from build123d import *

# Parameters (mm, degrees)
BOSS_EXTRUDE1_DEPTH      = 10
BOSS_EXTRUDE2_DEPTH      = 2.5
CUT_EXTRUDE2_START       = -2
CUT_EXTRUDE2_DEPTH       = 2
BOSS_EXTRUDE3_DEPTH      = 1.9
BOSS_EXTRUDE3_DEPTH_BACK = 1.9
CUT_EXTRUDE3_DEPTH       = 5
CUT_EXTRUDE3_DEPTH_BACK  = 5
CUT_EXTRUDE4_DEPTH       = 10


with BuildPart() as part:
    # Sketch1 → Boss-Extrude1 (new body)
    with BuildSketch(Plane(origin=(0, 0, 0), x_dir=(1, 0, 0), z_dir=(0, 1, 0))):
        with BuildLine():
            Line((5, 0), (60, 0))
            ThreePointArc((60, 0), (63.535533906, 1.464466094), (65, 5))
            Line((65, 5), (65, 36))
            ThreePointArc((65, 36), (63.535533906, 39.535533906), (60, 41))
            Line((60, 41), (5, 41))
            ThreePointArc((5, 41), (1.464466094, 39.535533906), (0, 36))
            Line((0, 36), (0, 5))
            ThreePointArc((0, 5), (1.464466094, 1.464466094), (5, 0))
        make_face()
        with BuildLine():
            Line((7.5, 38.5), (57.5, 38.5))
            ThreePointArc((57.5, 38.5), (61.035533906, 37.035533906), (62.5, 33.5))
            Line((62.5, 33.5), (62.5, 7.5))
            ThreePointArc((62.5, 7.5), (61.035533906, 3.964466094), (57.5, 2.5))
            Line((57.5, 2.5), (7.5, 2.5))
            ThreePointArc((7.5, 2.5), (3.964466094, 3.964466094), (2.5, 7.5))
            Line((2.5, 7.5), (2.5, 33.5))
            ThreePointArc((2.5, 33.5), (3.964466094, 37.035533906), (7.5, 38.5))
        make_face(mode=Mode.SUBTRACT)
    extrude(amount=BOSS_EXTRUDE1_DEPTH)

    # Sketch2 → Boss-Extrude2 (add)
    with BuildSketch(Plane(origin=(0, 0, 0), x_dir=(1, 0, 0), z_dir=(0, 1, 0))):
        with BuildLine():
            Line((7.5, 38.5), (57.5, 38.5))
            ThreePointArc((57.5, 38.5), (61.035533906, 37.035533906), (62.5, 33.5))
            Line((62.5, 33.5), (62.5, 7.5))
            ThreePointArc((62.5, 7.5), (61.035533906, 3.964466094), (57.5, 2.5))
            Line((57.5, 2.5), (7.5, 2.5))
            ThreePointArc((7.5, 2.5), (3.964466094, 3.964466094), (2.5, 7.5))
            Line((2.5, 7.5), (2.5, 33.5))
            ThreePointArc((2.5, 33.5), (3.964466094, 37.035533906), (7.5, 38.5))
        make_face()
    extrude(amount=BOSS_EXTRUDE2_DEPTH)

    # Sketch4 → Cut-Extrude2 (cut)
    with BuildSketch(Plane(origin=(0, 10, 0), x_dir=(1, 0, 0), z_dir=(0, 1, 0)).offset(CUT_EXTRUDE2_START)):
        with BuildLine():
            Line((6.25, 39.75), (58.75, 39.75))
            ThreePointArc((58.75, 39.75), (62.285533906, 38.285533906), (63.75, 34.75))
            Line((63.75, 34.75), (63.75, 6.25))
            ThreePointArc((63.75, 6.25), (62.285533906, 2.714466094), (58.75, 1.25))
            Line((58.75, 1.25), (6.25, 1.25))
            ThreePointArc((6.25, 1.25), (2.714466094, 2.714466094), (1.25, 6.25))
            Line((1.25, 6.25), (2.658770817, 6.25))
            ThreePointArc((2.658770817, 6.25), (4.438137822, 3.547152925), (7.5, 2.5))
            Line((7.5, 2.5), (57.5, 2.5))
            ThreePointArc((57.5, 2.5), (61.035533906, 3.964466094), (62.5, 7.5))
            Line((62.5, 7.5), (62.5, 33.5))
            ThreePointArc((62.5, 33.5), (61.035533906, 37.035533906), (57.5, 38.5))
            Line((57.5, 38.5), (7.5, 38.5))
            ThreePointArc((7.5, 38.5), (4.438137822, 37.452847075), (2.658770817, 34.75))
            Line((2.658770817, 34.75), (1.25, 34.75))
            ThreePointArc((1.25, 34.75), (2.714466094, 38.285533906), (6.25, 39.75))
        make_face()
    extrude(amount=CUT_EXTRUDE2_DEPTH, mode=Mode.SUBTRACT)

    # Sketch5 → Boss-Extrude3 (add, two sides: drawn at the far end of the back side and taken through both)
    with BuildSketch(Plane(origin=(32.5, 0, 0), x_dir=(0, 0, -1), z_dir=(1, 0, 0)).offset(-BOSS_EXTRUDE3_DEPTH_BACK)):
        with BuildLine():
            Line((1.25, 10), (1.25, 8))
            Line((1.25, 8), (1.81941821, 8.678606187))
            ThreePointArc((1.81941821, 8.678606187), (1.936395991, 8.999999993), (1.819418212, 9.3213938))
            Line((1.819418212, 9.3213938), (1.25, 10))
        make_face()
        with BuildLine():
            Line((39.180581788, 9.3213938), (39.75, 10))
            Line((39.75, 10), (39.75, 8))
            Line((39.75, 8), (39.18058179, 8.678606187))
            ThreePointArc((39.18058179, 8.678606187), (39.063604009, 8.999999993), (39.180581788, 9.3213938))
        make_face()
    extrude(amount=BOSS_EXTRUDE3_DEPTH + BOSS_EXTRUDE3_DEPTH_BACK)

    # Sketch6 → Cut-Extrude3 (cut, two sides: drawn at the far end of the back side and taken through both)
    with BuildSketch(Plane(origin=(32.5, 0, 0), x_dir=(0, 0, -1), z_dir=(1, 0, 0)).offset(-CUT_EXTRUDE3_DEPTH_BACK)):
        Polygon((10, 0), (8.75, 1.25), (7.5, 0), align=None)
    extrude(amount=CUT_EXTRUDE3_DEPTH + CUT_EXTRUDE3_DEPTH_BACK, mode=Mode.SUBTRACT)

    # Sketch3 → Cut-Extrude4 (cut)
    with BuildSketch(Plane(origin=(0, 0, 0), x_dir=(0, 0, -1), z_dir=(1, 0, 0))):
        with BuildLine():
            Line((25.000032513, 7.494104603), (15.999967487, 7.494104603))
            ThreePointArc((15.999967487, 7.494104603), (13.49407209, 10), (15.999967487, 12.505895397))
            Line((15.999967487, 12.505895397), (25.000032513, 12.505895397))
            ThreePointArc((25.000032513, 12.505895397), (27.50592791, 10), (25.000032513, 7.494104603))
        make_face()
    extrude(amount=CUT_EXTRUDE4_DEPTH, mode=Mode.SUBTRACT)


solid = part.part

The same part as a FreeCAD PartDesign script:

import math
import FreeCAD as App
import Part
import Sketcher
from FreeCAD import Vector
Q = App.Units.Quantity

doc = App.newDocument("Part")
body = doc.addObject("PartDesign::Body", "Body")

sketch1 = body.newObject("Sketcher::SketchObject", "Sketch")
sketch1.AttachmentSupport = (doc.getObject("XZ_Plane"), [""])
sketch1.MapMode = "FlatFace"
sketch1.addGeometry([
    Part.LineSegment(Vector(5, 0, 0), Vector(60, 0, 0)),
    Part.ArcOfCircle(Part.Circle(Vector(60, -5, 0), Vector(0, 0, 1), 5), math.radians(0), math.radians(90)),
    Part.LineSegment(Vector(65, -5, 0), Vector(65, -36, 0)),
    Part.ArcOfCircle(Part.Circle(Vector(60, -36, 0), Vector(0, 0, 1), 5), math.radians(-90), math.radians(0)),
    Part.LineSegment(Vector(60, -41, 0), Vector(5, -41, 0)),
    Part.ArcOfCircle(Part.Circle(Vector(5, -36, 0), Vector(0, 0, 1), 5), math.radians(180), math.radians(270)),
    Part.LineSegment(Vector(0, -36, 0), Vector(0, -5, 0)),
    Part.ArcOfCircle(Part.Circle(Vector(5, -5, 0), Vector(0, 0, 1), 5), math.radians(90), math.radians(180)),
    Part.ArcOfCircle(Part.Circle(Vector(8, -34, 0), Vector(0, 0, 1), 5), math.radians(180), math.radians(270)),
    Part.LineSegment(Vector(8, -38, 0), Vector(58, -38, 0)),
    Part.ArcOfCircle(Part.Circle(Vector(58, -34, 0), Vector(0, 0, 1), 5), math.radians(-90), math.radians(0)),
    Part.LineSegment(Vector(62, -34, 0), Vector(62, -8, 0)),
    Part.ArcOfCircle(Part.Circle(Vector(58, -8, 0), Vector(0, 0, 1), 5), math.radians(0), math.radians(90)),
    Part.LineSegment(Vector(58, -2, 0), Vector(8, -2, 0)),
    Part.ArcOfCircle(Part.Circle(Vector(8, -8, 0), Vector(0, 0, 1), 5), math.radians(90), math.radians(180)),
    Part.LineSegment(Vector(2, -8, 0), Vector(2, -34, 0)),
], False)
sketch1.addConstraint([
    Sketcher.Constraint("Tangent", 0, 2, 1, 2),
    Sketcher.Constraint("Tangent", 1, 1, 2, 1),
    Sketcher.Constraint("Tangent", 2, 2, 3, 2),
    Sketcher.Constraint("Tangent", 3, 1, 4, 1),
    Sketcher.Constraint("Tangent", 4, 2, 5, 2),
    Sketcher.Constraint("Tangent", 5, 1, 6, 1),
    Sketcher.Constraint("Tangent", 6, 2, 7, 2),
    Sketcher.Constraint("Tangent", 7, 1, 0, 1),
    Sketcher.Constraint("Tangent", 8, 2, 9, 1),
    Sketcher.Constraint("Tangent", 9, 2, 10, 1),
    Sketcher.Constraint("Tangent", 10, 2, 11, 1),
    Sketcher.Constraint("Tangent", 11, 2, 12, 1),
    Sketcher.Constraint("Tangent", 12, 2, 13, 1),
    Sketcher.Constraint("Tangent", 13, 2, 14, 1),
    Sketcher.Constraint("Tangent", 14, 2, 15, 1),
    Sketcher.Constraint("Tangent", 15, 2, 8, 1),
    Sketcher.Constraint("Horizontal", 0),
    Sketcher.Constraint("Vertical", 2),
    Sketcher.Constraint("Horizontal", 4),
    Sketcher.Constraint("Vertical", 6),
    Sketcher.Constraint("Horizontal", 9),
    Sketcher.Constraint("Vertical", 11),
    Sketcher.Constraint("Horizontal", 13),
    Sketcher.Constraint("Vertical", 15),
    Sketcher.Constraint("Equal", 1, 3),
    Sketcher.Constraint("Equal", 3, 5),
    Sketcher.Constraint("Equal", 5, 7),
    Sketcher.Constraint("Equal", 7, 8),
    Sketcher.Constraint("Equal", 8, 10),
    Sketcher.Constraint("Equal", 10, 12),
    Sketcher.Constraint("Equal", 12, 14),
    Sketcher.Constraint("PointOnObject", 0, 2, -1),
    Sketcher.Constraint("PointOnObject", 5, 1, -2),
    Sketcher.Constraint("Radius", 1, 5.0),
    Sketcher.Constraint("DistanceX", 0, 1, 0, 2, 55.0),
    Sketcher.Constraint("DistanceX", 9, 1, 9, 2, 50.0),
    Sketcher.Constraint("DistanceY", 2, 2, 2, 1, 31.0),
    Sketcher.Constraint("DistanceY", 11, 1, 11, 2, 26.0),
    Sketcher.Constraint("DistanceX", -1, 1, 8, 3, 7.5),
    Sketcher.Constraint("DistanceY", 8, 3, -1, 1, 33.5),
])
pad1 = body.newObject("PartDesign::Pad", "Pad")
pad1.Profile = sketch1
pad1.Length = 10
pad1.Reversed = True

sketch2 = body.newObject("Sketcher::SketchObject", "Sketch001")
sketch2.AttachmentSupport = (doc.getObject("XZ_Plane"), [""])
sketch2.MapMode = "FlatFace"
sketch2.addGeometry([
    Part.LineSegment(Vector(58, -38, 0), Vector(8, -38, 0)),
    Part.ArcOfCircle(Part.Circle(Vector(8, -34, 0), Vector(0, 0, 1), 5), math.radians(180), math.radians(270)),
    Part.LineSegment(Vector(2, -34, 0), Vector(2, -8, 0)),
    Part.ArcOfCircle(Part.Circle(Vector(8, -8, 0), Vector(0, 0, 1), 5), math.radians(90), math.radians(180)),
    Part.LineSegment(Vector(8, -2, 0), Vector(58, -2, 0)),
    Part.ArcOfCircle(Part.Circle(Vector(58, -8, 0), Vector(0, 0, 1), 5), math.radians(0), math.radians(90)),
    Part.LineSegment(Vector(62, -8, 0), Vector(62, -34, 0)),
    Part.ArcOfCircle(Part.Circle(Vector(58, -34, 0), Vector(0, 0, 1), 5), math.radians(-90), math.radians(0)),
], False)
sketch2.addConstraint([
    Sketcher.Constraint("Tangent", 0, 2, 1, 2),
    Sketcher.Constraint("Tangent", 1, 1, 2, 1),
    Sketcher.Constraint("Tangent", 2, 2, 3, 2),
    Sketcher.Constraint("Tangent", 3, 1, 4, 1),
    Sketcher.Constraint("Tangent", 4, 2, 5, 2),
    Sketcher.Constraint("Tangent", 5, 1, 6, 1),
    Sketcher.Constraint("Tangent", 6, 2, 7, 2),
    Sketcher.Constraint("Tangent", 7, 1, 0, 1),
    Sketcher.Constraint("Horizontal", 0),
    Sketcher.Constraint("Vertical", 2),
    Sketcher.Constraint("Horizontal", 4),
    Sketcher.Constraint("Vertical", 6),
    Sketcher.Constraint("Equal", 1, 3),
    Sketcher.Constraint("Equal", 3, 5),
    Sketcher.Constraint("Equal", 5, 7),
    Sketcher.Constraint("Radius", 1, 5.0),
    Sketcher.Constraint("DistanceX", 0, 2, 0, 1, 50.0),
    Sketcher.Constraint("DistanceY", 2, 1, 2, 2, 26.0),
    Sketcher.Constraint("DistanceX", -1, 1, 1, 3, 7.5),
    Sketcher.Constraint("DistanceY", 1, 3, -1, 1, 33.5),
])
pad2 = body.newObject("PartDesign::Pad", "Pad001")
pad2.Profile = sketch2
pad2.Length = 2.5
pad2.Reversed = True

sketch3 = body.newObject("Sketcher::SketchObject", "Sketch002")
sketch3.AttachmentSupport = (doc.getObject("XZ_Plane"), [""])
sketch3.MapMode = "FlatFace"
sketch3.AttachmentOffset = App.Placement(Vector(0, 0, -8), App.Rotation())
sketch3.addGeometry([
    Part.LineSegment(Vector(58.8, -39.8, 0), Vector(6.2, -39.8, 0)),
    Part.ArcOfCircle(Part.Circle(Vector(6.2, -34.8, 0), Vector(0, 0, 1), 5), math.radians(180), math.radians(270)),
    Part.LineSegment(Vector(1.2, -34.8, 0), Vector(2.7, -34.8, 0)),
    Part.ArcOfCircle(Part.Circle(Vector(7.5, -33.5, 0), Vector(0, 0, 1), 5), math.radians(-166), math.radians(-90)),
    Part.LineSegment(Vector(7.5, -38.5, 0), Vector(57.5, -38.5, 0)),
    Part.ArcOfCircle(Part.Circle(Vector(57.5, -33.5, 0), Vector(0, 0, 1), 5), math.radians(-90), math.radians(0)),
    Part.LineSegment(Vector(62.5, -33.5, 0), Vector(62.5, -7.5, 0)),
    Part.ArcOfCircle(Part.Circle(Vector(57.5, -7.5, 0), Vector(0, 0, 1), 5), math.radians(0), math.radians(90)),
    Part.LineSegment(Vector(57.5, -2.5, 0), Vector(7.5, -2.5, 0)),
    Part.ArcOfCircle(Part.Circle(Vector(7.5, -7.5, 0), Vector(0, 0, 1), 5), math.radians(90), math.radians(166)),
    Part.LineSegment(Vector(2.7, -6.2, 0), Vector(1.2, -6.2, 0)),
    Part.ArcOfCircle(Part.Circle(Vector(6.2, -6.2, 0), Vector(0, 0, 1), 5), math.radians(90), math.radians(180)),
    Part.LineSegment(Vector(6.2, -1.2, 0), Vector(58.8, -1.2, 0)),
    Part.ArcOfCircle(Part.Circle(Vector(58.8, -6.2, 0), Vector(0, 0, 1), 5), math.radians(0), math.radians(90)),
    Part.LineSegment(Vector(63.8, -6.2, 0), Vector(63.8, -34.8, 0)),
    Part.ArcOfCircle(Part.Circle(Vector(58.8, -34.8, 0), Vector(0, 0, 1), 5), math.radians(-90), math.radians(0)),
], False)
sketch3.addConstraint([
    Sketcher.Constraint("Tangent", 0, 2, 1, 2),
    Sketcher.Constraint("Coincident", 1, 1, 2, 1),
    Sketcher.Constraint("Coincident", 2, 2, 3, 1),
    Sketcher.Constraint("Tangent", 3, 2, 4, 1),
    Sketcher.Constraint("Tangent", 4, 2, 5, 1),
    Sketcher.Constraint("Tangent", 5, 2, 6, 1),
    Sketcher.Constraint("Tangent", 6, 2, 7, 1),
    Sketcher.Constraint("Tangent", 7, 2, 8, 1),
    Sketcher.Constraint("Tangent", 8, 2, 9, 1),
    Sketcher.Constraint("Coincident", 9, 2, 10, 1),
    Sketcher.Constraint("Coincident", 10, 2, 11, 2),
    Sketcher.Constraint("Tangent", 11, 1, 12, 1),
    Sketcher.Constraint("Tangent", 12, 2, 13, 2),
    Sketcher.Constraint("Tangent", 13, 1, 14, 1),
    Sketcher.Constraint("Tangent", 14, 2, 15, 2),
    Sketcher.Constraint("Tangent", 15, 1, 0, 1),
    Sketcher.Constraint("Horizontal", 0),
    Sketcher.Constraint("Horizontal", 2),
    Sketcher.Constraint("Horizontal", 4),
    Sketcher.Constraint("Vertical", 6),
    Sketcher.Constraint("Horizontal", 8),
    Sketcher.Constraint("Horizontal", 10),
    Sketcher.Constraint("Horizontal", 12),
    Sketcher.Constraint("Vertical", 14),
    Sketcher.Constraint("Equal", 1, 3),
    Sketcher.Constraint("Equal", 3, 5),
    Sketcher.Constraint("Equal", 5, 7),
    Sketcher.Constraint("Equal", 7, 9),
    Sketcher.Constraint("Equal", 9, 11),
    Sketcher.Constraint("Equal", 11, 13),
    Sketcher.Constraint("Equal", 13, 15),
    Sketcher.Constraint("Horizontal", 15, 3, 1, 1),
    Sketcher.Constraint("Horizontal", 13, 3, 9, 2),
    Sketcher.Constraint("Vertical", 3, 3, 9, 3),
    Sketcher.Constraint("Vertical", 1, 3, 11, 3),
    Sketcher.Constraint("Vertical", 2, 2, 9, 2),
    Sketcher.Constraint("Radius", 1, 5.0),
    Sketcher.Constraint("DistanceX", 4, 1, 4, 2, 50.0),
    Sketcher.Constraint("DistanceY", 6, 1, 6, 2, 26.0),
    Sketcher.Constraint("DistanceX", 0, 2, 0, 1, 52.5),
    Sketcher.Constraint("DistanceY", 14, 2, 14, 1, 28.5),
    Sketcher.Constraint("DistanceX", -1, 1, 3, 3, 7.5),
    Sketcher.Constraint("DistanceY", 3, 3, -1, 1, 33.5),
    Sketcher.Constraint("DistanceX", -1, 1, 1, 3, 6.25),
])
pocket1 = body.newObject("PartDesign::Pocket", "Pocket")
pocket1.Profile = sketch3
pocket1.Length = 2

sketch4 = body.newObject("Sketcher::SketchObject", "Sketch003")
sketch4.AttachmentSupport = (doc.getObject("YZ_Plane"), [""])
sketch4.MapMode = "FlatFace"
sketch4.AttachmentOffset = App.Placement(Vector(0, 0, 32.5), App.Rotation())
sketch4.addGeometry([
    Part.LineSegment(Vector(10, -1.25, 0), Vector(8, -1.25, 0)),
    Part.LineSegment(Vector(8, -1.25, 0), Vector(8.68, -1.82, 0)),
    Part.ArcOfCircle(Part.Circle(Vector(9, -1.44, 0), Vector(0, 0, 1), 0.5), math.radians(-130), math.radians(-50)),
    Part.LineSegment(Vector(9.32, -1.82, 0), Vector(10, -1.25, 0)),
    Part.LineSegment(Vector(10, -39.75, 0), Vector(9.32, -39.18, 0)),
    Part.ArcOfCircle(Part.Circle(Vector(9, -39.56, 0), Vector(0, 0, 1), 0.5), math.radians(50), math.radians(130)),
    Part.LineSegment(Vector(8.68, -39.18, 0), Vector(8, -39.75, 0)),
    Part.LineSegment(Vector(8, -39.75, 0), Vector(10, -39.75, 0)),
], False)
sketch4.addConstraint([
    Sketcher.Constraint("Coincident", 0, 2, 1, 1),
    Sketcher.Constraint("Tangent", 1, 2, 2, 1),
    Sketcher.Constraint("Tangent", 2, 2, 3, 1),
    Sketcher.Constraint("Coincident", 3, 2, 0, 1),
    Sketcher.Constraint("Tangent", 4, 2, 5, 1),
    Sketcher.Constraint("Tangent", 5, 2, 6, 1),
    Sketcher.Constraint("Coincident", 6, 2, 7, 1),
    Sketcher.Constraint("Coincident", 7, 2, 4, 1),
    Sketcher.Constraint("Horizontal", 0),
    Sketcher.Constraint("Horizontal", 7),
    Sketcher.Constraint("Equal", 2, 5),
    Sketcher.Constraint("Parallel", 1, 4),
    Sketcher.Constraint("Parallel", 3, 6),
    Sketcher.Constraint("Horizontal", 1, 2, 2, 2),
    Sketcher.Constraint("Vertical", 2, 3, 5, 3),
    Sketcher.Constraint("Vertical", 0, 2, 6, 2),
    Sketcher.Constraint("Radius", 2, 0.5),
    Sketcher.Constraint("DistanceX", 0, 2, 0, 1, 2.0),
    Sketcher.Constraint("Angle", 1, Q("-40 deg")),
    Sketcher.Constraint("DistanceX", -1, 1, 2, 3, 9.0),
    Sketcher.Constraint("DistanceY", 0, 2, -1, 1, 1.25),
    Sketcher.Constraint("DistanceY", 6, 2, -1, 1, 39.75),
])
pad3 = body.newObject("PartDesign::Pad", "Pad002")
pad3.Profile = sketch4
pad3.Type = "TwoLengths"
pad3.Length = 1.9
pad3.Length2 = 1.9

sketch5 = body.newObject("Sketcher::SketchObject", "Sketch004")
sketch5.AttachmentSupport = (doc.getObject("YZ_Plane"), [""])
sketch5.MapMode = "FlatFace"
sketch5.AttachmentOffset = App.Placement(Vector(0, 0, 32.5), App.Rotation())
sketch5.addGeometry([
    Part.LineSegment(Vector(0, -10, 0), Vector(1.2, -8.8, 0)),
    Part.LineSegment(Vector(1.2, -8.8, 0), Vector(0, -7.5, 0)),
    Part.LineSegment(Vector(0, -7.5, 0), Vector(0, -10, 0)),
], False)
sketch5.addConstraint([
    Sketcher.Constraint("Coincident", 0, 2, 1, 1),
    Sketcher.Constraint("Coincident", 1, 2, 2, 1),
    Sketcher.Constraint("Coincident", 2, 2, 0, 1),
    Sketcher.Constraint("Vertical", 2),
    Sketcher.Constraint("PointOnObject", 1, 2, -2),
    Sketcher.Constraint("Perpendicular", 0, 1),
    Sketcher.Constraint("Equal", 0, 1),
    Sketcher.Constraint("DistanceY", 2, 2, 2, 1, 2.5),
    Sketcher.Constraint("DistanceY", 2, 2, -1, 1, 10.0),
])
pocket2 = body.newObject("PartDesign::Pocket", "Pocket001")
pocket2.Profile = sketch5
pocket2.Type = "TwoLengths"
pocket2.Length = 5
pocket2.Length2 = 5
pocket2.Reversed = True

sketch6 = body.newObject("Sketcher::SketchObject", "Sketch005")
sketch6.AttachmentSupport = (doc.getObject("YZ_Plane"), [""])
sketch6.MapMode = "FlatFace"
sketch6.addGeometry([
    Part.LineSegment(Vector(7.5, -16, 0), Vector(7.5, -25, 0)),
    Part.ArcOfCircle(Part.Circle(Vector(10, -25, 0), Vector(0, 0, 1), 2.5), math.radians(180), math.radians(360)),
    Part.LineSegment(Vector(12.5, -25, 0), Vector(12.5, -16, 0)),
    Part.ArcOfCircle(Part.Circle(Vector(10, -16, 0), Vector(0, 0, 1), 2.5), math.radians(0), math.radians(180)),
], False)
sketch6.addConstraint([
    Sketcher.Constraint("Tangent", 0, 2, 1, 1),
    Sketcher.Constraint("Tangent", 1, 2, 2, 1),
    Sketcher.Constraint("Tangent", 2, 2, 3, 1),
    Sketcher.Constraint("Tangent", 3, 2, 0, 1),
    Sketcher.Constraint("Vertical", 0),
    Sketcher.Constraint("Vertical", 2),
    Sketcher.Constraint("DistanceX", -1, 1, 1, 3, 10.0),
    Sketcher.Constraint("Radius", 1, 2.505895),
    Sketcher.Constraint("DistanceY", 0, 2, 0, 1, 9.000065),
    Sketcher.Constraint("DistanceY", 1, 3, -1, 1, 25.000033),
])
pocket3 = body.newObject("PartDesign::Pocket", "Pocket002")
pocket3.Profile = sketch6
pocket3.Length = 10
pocket3.Reversed = True

doc.recompute()
